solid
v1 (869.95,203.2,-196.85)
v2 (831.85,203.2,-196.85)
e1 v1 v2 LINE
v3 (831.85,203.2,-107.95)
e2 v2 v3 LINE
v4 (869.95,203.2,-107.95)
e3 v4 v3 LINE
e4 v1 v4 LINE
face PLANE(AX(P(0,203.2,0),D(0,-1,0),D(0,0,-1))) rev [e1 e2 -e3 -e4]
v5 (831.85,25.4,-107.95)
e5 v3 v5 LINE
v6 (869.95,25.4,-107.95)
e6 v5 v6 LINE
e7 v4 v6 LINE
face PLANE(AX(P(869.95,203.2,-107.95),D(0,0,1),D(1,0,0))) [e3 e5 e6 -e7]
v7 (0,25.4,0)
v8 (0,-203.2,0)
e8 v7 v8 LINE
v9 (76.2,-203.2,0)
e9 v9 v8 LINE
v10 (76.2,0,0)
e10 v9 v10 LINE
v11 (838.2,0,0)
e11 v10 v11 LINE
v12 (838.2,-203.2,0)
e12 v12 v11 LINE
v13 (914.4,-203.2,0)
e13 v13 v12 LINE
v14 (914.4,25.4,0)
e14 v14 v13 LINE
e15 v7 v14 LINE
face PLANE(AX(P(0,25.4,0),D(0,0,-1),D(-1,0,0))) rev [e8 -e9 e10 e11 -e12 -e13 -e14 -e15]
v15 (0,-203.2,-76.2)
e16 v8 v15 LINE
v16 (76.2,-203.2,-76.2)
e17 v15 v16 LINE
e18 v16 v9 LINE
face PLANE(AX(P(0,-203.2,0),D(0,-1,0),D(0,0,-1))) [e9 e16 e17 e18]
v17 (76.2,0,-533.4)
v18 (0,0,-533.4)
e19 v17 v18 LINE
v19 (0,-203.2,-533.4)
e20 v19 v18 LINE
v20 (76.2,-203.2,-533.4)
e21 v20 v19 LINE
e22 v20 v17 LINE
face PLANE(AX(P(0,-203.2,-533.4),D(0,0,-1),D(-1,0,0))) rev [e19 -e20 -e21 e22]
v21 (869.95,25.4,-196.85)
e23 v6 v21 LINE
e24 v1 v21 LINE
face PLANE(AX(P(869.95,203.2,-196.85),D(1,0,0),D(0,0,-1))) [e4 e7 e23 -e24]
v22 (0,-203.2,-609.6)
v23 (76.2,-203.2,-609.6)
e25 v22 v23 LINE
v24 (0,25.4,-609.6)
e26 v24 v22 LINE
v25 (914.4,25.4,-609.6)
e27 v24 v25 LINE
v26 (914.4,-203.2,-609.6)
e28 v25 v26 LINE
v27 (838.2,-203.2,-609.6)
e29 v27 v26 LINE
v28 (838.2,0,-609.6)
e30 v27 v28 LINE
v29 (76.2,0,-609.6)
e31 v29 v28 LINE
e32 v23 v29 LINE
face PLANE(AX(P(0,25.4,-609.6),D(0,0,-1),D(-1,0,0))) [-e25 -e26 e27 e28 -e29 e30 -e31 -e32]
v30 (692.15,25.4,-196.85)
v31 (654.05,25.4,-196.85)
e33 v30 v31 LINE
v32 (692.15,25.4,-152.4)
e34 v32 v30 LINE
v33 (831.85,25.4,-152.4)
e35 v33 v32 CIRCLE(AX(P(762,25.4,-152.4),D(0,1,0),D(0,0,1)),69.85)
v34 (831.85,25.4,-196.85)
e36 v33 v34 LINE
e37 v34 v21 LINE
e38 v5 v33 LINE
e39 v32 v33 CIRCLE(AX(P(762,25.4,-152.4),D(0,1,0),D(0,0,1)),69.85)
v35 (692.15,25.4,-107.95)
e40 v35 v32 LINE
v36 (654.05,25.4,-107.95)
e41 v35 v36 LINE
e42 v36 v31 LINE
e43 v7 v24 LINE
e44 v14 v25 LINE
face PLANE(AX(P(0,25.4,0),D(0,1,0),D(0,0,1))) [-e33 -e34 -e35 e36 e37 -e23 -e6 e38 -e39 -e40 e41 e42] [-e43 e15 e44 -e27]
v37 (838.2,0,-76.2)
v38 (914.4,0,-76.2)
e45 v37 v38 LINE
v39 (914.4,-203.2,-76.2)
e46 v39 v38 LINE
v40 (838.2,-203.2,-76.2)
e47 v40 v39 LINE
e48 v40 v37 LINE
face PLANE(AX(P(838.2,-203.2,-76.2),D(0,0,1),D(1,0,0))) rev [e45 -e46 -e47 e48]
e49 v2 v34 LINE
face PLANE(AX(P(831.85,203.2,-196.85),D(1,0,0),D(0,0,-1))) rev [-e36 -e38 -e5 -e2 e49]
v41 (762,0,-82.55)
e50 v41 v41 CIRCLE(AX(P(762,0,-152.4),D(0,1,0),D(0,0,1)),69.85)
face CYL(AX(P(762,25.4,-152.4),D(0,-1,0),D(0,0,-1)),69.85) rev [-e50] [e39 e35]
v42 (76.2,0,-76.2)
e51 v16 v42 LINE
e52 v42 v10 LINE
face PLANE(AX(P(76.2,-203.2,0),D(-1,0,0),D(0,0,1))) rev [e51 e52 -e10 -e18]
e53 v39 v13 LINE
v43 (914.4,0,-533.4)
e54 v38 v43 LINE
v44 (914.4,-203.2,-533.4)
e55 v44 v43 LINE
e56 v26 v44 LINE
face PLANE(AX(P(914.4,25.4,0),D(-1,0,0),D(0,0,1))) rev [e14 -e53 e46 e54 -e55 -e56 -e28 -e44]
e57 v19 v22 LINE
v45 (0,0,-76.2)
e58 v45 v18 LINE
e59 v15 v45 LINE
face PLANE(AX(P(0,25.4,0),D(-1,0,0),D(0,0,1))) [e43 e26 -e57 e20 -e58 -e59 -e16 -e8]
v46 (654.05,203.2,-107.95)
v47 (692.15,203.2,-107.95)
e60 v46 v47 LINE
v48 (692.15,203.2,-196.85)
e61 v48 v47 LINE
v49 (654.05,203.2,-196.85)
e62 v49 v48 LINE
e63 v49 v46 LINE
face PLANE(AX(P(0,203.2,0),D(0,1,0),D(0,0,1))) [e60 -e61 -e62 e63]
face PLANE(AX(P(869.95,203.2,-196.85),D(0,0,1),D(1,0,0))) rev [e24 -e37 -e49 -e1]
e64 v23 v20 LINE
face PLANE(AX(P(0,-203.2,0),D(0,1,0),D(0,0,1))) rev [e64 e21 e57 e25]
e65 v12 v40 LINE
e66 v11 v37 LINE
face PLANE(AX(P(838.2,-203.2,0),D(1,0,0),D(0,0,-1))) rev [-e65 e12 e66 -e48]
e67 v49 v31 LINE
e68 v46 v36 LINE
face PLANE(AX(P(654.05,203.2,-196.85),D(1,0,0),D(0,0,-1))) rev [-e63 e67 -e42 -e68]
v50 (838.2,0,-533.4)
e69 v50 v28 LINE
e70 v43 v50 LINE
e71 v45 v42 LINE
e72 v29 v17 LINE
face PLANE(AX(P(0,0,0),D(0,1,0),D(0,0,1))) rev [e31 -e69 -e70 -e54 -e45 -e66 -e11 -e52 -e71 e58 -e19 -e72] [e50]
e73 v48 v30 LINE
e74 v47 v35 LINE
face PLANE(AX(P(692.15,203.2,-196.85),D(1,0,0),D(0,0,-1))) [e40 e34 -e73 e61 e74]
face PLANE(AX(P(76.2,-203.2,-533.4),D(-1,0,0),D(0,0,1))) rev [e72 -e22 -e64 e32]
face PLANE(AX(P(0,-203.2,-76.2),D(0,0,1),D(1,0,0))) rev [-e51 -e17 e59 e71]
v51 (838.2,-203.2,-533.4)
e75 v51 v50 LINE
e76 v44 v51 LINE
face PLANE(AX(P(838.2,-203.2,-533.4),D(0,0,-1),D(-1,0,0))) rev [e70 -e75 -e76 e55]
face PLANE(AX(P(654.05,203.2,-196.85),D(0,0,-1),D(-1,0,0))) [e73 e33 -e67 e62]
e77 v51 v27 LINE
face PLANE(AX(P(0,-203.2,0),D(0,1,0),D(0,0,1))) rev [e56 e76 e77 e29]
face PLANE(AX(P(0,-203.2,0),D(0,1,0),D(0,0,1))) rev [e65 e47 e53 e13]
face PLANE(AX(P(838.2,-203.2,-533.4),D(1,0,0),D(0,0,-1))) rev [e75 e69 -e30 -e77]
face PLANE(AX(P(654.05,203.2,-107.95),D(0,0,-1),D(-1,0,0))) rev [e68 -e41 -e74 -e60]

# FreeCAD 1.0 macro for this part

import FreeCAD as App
import Part
import Sketcher
Q = App.Units.Quantity

doc = App.newDocument("Part")
body = doc.addObject("PartDesign::Body", "Body")

# Sketch on XZ plane
sketch1 = body.newObject("Sketcher::SketchObject", "Sketch")
sketch1.AttachmentSupport = (doc.getObject("XZ_Plane"), [""])
sketch1.MapMode = "FlatFace"
sketch1.addGeometry(Part.LineSegment(App.Vector(0, -609.6, 0), App.Vector(0, 0, 0)), False)
sketch1.addGeometry(Part.LineSegment(App.Vector(0, 0, 0), App.Vector(914.4, 0, 0)), False)
sketch1.addGeometry(Part.LineSegment(App.Vector(914.4, 0, 0), App.Vector(914.4, -609.6, 0)), False)
sketch1.addGeometry(Part.LineSegment(App.Vector(914.4, -609.6, 0), App.Vector(0, -609.6, 0)), False)
sketch1.addConstraint(Sketcher.Constraint("Coincident", 0, 2, 1, 1))
sketch1.addConstraint(Sketcher.Constraint("Coincident", 1, 2, 2, 1))
sketch1.addConstraint(Sketcher.Constraint("Coincident", 2, 2, 3, 1))
sketch1.addConstraint(Sketcher.Constraint("Coincident", 3, 2, 0, 1))
sketch1.addConstraint(Sketcher.Constraint("Vertical", 0))
sketch1.addConstraint(Sketcher.Constraint("Horizontal", 1))
sketch1.addConstraint(Sketcher.Constraint("Vertical", 2))
sketch1.addConstraint(Sketcher.Constraint("Horizontal", 3))
sketch1.addConstraint(Sketcher.Constraint("Coincident", 0, 2, -1, 1))
sketch1.addConstraint(Sketcher.Constraint("DistanceX", 1, 1, 1, 2, Q("36 in")))
sketch1.addConstraint(Sketcher.Constraint("DistanceY", 0, 1, 0, 2, Q("24 in")))
pad1 = body.newObject("PartDesign::Pad", "Pad")
pad1.Profile = sketch1
pad1.Length = Q("1 in")
pad1.Reversed = True

# Sketch on XZ plane
sketch2 = body.newObject("Sketcher::SketchObject", "Sketch001")
sketch2.AttachmentSupport = (doc.getObject("XZ_Plane"), [""])
sketch2.MapMode = "FlatFace"
sketch2.addGeometry(Part.Circle(App.Vector(762, -152.4, 0), App.Vector(0, 0, 1), 69.85), False)
sketch2.addConstraint(Sketcher.Constraint("Diameter", 0, Q("5.5 in")))
sketch2.addConstraint(Sketcher.Constraint("DistanceX", -1, 1, 0, 3, Q("30 in")))
sketch2.addConstraint(Sketcher.Constraint("DistanceY", 0, 3, -1, 1, Q("6 in")))
pocket1 = body.newObject("PartDesign::Pocket", "Pocket")
pocket1.Profile = sketch2
pocket1.Type = "ThroughAll"

# Sketch on XZ plane
sketch3 = body.newObject("Sketcher::SketchObject", "Sketch002")
sketch3.AttachmentSupport = (doc.getObject("XZ_Plane"), [""])
sketch3.MapMode = "FlatFace"
sketch3.addGeometry(Part.LineSegment(App.Vector(654.05, -196.85, 0), App.Vector(654.05, -107.95, 0)), False)
sketch3.addGeometry(Part.LineSegment(App.Vector(654.05, -107.95, 0), App.Vector(692.15, -107.95, 0)), False)
sketch3.addGeometry(Part.LineSegment(App.Vector(692.15, -107.95, 0), App.Vector(692.15, -196.85, 0)), False)
sketch3.addGeometry(Part.LineSegment(App.Vector(692.15, -196.85, 0), App.Vector(654.05, -196.85, 0)), False)
sketch3.addGeometry(Part.LineSegment(App.Vector(831.85, -196.85, 0), App.Vector(831.85, -107.95, 0)), False)
sketch3.addGeometry(Part.LineSegment(App.Vector(831.85, -107.95, 0), App.Vector(869.95, -107.95, 0)), False)
sketch3.addGeometry(Part.LineSegment(App.Vector(869.95, -107.95, 0), App.Vector(869.95, -196.85, 0)), False)
sketch3.addGeometry(Part.LineSegment(App.Vector(869.95, -196.85, 0), App.Vector(831.85, -196.85, 0)), False)
sketch3.addConstraint(Sketcher.Constraint("Coincident", 0, 2, 1, 1))
sketch3.addConstraint(Sketcher.Constraint("Coincident", 1, 2, 2, 1))
sketch3.addConstraint(Sketcher.Constraint("Coincident", 2, 2, 3, 1))
sketch3.addConstraint(Sketcher.Constraint("Coincident", 3, 2, 0, 1))
sketch3.addConstraint(Sketcher.Constraint("Coincident", 4, 2, 5, 1))
sketch3.addConstraint(Sketcher.Constraint("Coincident", 5, 2, 6, 1))
sketch3.addConstraint(Sketcher.Constraint("Coincident", 6, 2, 7, 1))
sketch3.addConstraint(Sketcher.Constraint("Coincident", 7, 2, 4, 1))
sketch3.addConstraint(Sketcher.Constraint("Vertical", 0))
sketch3.addConstraint(Sketcher.Constraint("Horizontal", 1))
sketch3.addConstraint(Sketcher.Constraint("Vertical", 2))
sketch3.addConstraint(Sketcher.Constraint("Horizontal", 3))
sketch3.addConstraint(Sketcher.Constraint("Vertical", 4))
sketch3.addConstraint(Sketcher.Constraint("Horizontal", 5))
sketch3.addConstraint(Sketcher.Constraint("Vertical", 6))
sketch3.addConstraint(Sketcher.Constraint("Horizontal", 7))
sketch3.addConstraint(Sketcher.Constraint("Horizontal", 1, 2, 4, 2))
sketch3.addConstraint(Sketcher.Constraint("Horizontal", 3, 2, 6, 2))
sketch3.addConstraint(Sketcher.Constraint("Equal", 3, 5))
sketch3.addConstraint(Sketcher.Constraint("DistanceX", 1, 1, 1, 2, Q("1.5 in")))
sketch3.addConstraint(Sketcher.Constraint("DistanceY", 0, 1, 0, 2, Q("3.5 in")))
sketch3.addConstraint(Sketcher.Constraint("DistanceX", 0, 2, 4, 2, Q("7 in")))
sketch3.addConstraint(Sketcher.Constraint("DistanceX", -1, 1, 0, 2, Q("25.75 in")))
sketch3.addConstraint(Sketcher.Constraint("DistanceY", 0, 2, -1, 1, Q("4.25 in")))
pad2 = body.newObject("PartDesign::Pad", "Pad001")
pad2.Profile = sketch3
pad2.Length = Q("8 in")
pad2.Reversed = True

# Sketch on XZ plane
sketch4 = body.newObject("Sketcher::SketchObject", "Sketch003")
sketch4.AttachmentSupport = (doc.getObject("XZ_Plane"), [""])
sketch4.MapMode = "FlatFace"
sketch4.addGeometry(Part.LineSegment(App.Vector(0, -533.4, 0), App.Vector(0, -609.6, 0)), False)
sketch4.addGeometry(Part.LineSegment(App.Vector(0, -609.6, 0), App.Vector(76.2, -609.6, 0)), False)
sketch4.addGeometry(Part.LineSegment(App.Vector(76.2, -609.6, 0), App.Vector(76.2, -533.4, 0)), False)
sketch4.addGeometry(Part.LineSegment(App.Vector(76.2, -533.4, 0), App.Vector(0, -533.4, 0)), False)
sketch4.addGeometry(Part.LineSegment(App.Vector(0, 0, 0), App.Vector(0, -76.2, 0)), False)
sketch4.addGeometry(Part.LineSegment(App.Vector(0, -76.2, 0), App.Vector(76.2, -76.2, 0)), False)
sketch4.addGeometry(Part.LineSegment(App.Vector(76.2, -76.2, 0), App.Vector(76.2, 0, 0)), False)
sketch4.addGeometry(Part.LineSegment(App.Vector(76.2, 0, 0), App.Vector(0, 0, 0)), False)
sketch4.addGeometry(Part.LineSegment(App.Vector(838.2, -533.4, 0), App.Vector(838.2, -609.6, 0)), False)
sketch4.addGeometry(Part.LineSegment(App.Vector(838.2, -609.6, 0), App.Vector(914.4, -609.6, 0)), False)
sketch4.addGeometry(Part.LineSegment(App.Vector(914.4, -609.6, 0), App.Vector(914.4, -533.4, 0)), False)
sketch4.addGeometry(Part.LineSegment(App.Vector(914.4, -533.4, 0), App.Vector(838.2, -533.4, 0)), False)
sketch4.addGeometry(Part.LineSegment(App.Vector(838.2, 0, 0), App.Vector(838.2, -76.2, 0)), False)
sketch4.addGeometry(Part.LineSegment(App.Vector(838.2, -76.2, 0), App.Vector(914.4, -76.2, 0)), False)
sketch4.addGeometry(Part.LineSegment(App.Vector(914.4, -76.2, 0), App.Vector(914.4, 0, 0)), False)
sketch4.addGeometry(Part.LineSegment(App.Vector(914.4, 0, 0), App.Vector(838.2, 0, 0)), False)
sketch4.addConstraint(Sketcher.Constraint("Coincident", 0, 2, 1, 1))
sketch4.addConstraint(Sketcher.Constraint("Coincident", 1, 2, 2, 1))
sketch4.addConstraint(Sketcher.Constraint("Coincident", 2, 2, 3, 1))
sketch4.addConstraint(Sketcher.Constraint("Coincident", 3, 2, 0, 1))
sketch4.addConstraint(Sketcher.Constraint("Coincident", 4, 2, 5, 1))
sketch4.addConstraint(Sketcher.Constraint("Coincident", 5, 2, 6, 1))
sketch4.addConstraint(Sketcher.Constraint("Coincident", 6, 2, 7, 1))
sketch4.addConstraint(Sketcher.Constraint("Coincident", 7, 2, 4, 1))
sketch4.addConstraint(Sketcher.Constraint("Coincident", 8, 2, 9, 1))
sketch4.addConstraint(Sketcher.Constraint("Coincident", 9, 2, 10, 1))
sketch4.addConstraint(Sketcher.Constraint("Coincident", 10, 2, 11, 1))
sketch4.addConstraint(Sketcher.Constraint("Coincident", 11, 2, 8, 1))
sketch4.addConstraint(Sketcher.Constraint("Coincident", 12, 2, 13, 1))
sketch4.addConstraint(Sketcher.Constraint("Coincident", 13, 2, 14, 1))
sketch4.addConstraint(Sketcher.Constraint("Coincident", 14, 2, 15, 1))
sketch4.addConstraint(Sketcher.Constraint("Coincident", 15, 2, 12, 1))
sketch4.addConstraint(Sketcher.Constraint("Vertical", 0))
sketch4.addConstraint(Sketcher.Constraint("Horizontal", 1))
sketch4.addConstraint(Sketcher.Constraint("Vertical", 2))
sketch4.addConstraint(Sketcher.Constraint("Horizontal", 3))
sketch4.addConstraint(Sketcher.Constraint("Vertical", 4))
sketch4.addConstraint(Sketcher.Constraint("Horizontal", 5))
sketch4.addConstraint(Sketcher.Constraint("Vertical", 6))
sketch4.addConstraint(Sketcher.Constraint("Horizontal", 7))
sketch4.addConstraint(Sketcher.Constraint("Vertical", 8))
sketch4.addConstraint(Sketcher.Constraint("Horizontal", 9))
sketch4.addConstraint(Sketcher.Constraint("Vertical", 10))
sketch4.addConstraint(Sketcher.Constraint("Horizontal", 11))
sketch4.addConstraint(Sketcher.Constraint("Vertical", 12))
sketch4.addConstraint(Sketcher.Constraint("Horizontal", 13))
sketch4.addConstraint(Sketcher.Constraint("Vertical", 14))
sketch4.addConstraint(Sketcher.Constraint("Horizontal", 15))
sketch4.addConstraint(Sketcher.Constraint("Coincident", 7, 2, -1, 1))
sketch4.addConstraint(Sketcher.Constraint("PointOnObject", 0, 2, -2))
sketch4.addConstraint(Sketcher.Constraint("PointOnObject", 14, 2, -1))
sketch4.addConstraint(Sketcher.Constraint("Horizontal", 1, 2, 8, 2))
sketch4.addConstraint(Sketcher.Constraint("Horizontal", 3, 2, 10, 2))
sketch4.addConstraint(Sketcher.Constraint("Horizontal", 5, 2, 12, 2))
sketch4.addConstraint(Sketcher.Constraint("Vertical", 2, 2, 5, 2))
sketch4.addConstraint(Sketcher.Constraint("Vertical", 11, 2, 12, 2))
sketch4.addConstraint(Sketcher.Constraint("Vertical", 10, 2, 13, 2))
sketch4.addConstraint(Sketcher.Constraint("Equal", 7, 9))
sketch4.addConstraint(Sketcher.Constraint("Equal", 15, 0))
sketch4.addConstraint(Sketcher.Constraint("Equal", 2, 4))
sketch4.addConstraint(Sketcher.Constraint("DistanceX", 1, 1, 1, 2, Q("3 in")))
sketch4.addConstraint(Sketcher.Constraint("DistanceY", 0, 2, -1, 1, Q("24 in")))
sketch4.addConstraint(Sketcher.Constraint("DistanceX", -1, 1, 8, 2, Q("33 in")))
pad3 = body.newObject("PartDesign::Pad", "Pad002")
pad3.Profile = sketch4
pad3.Length = Q("8 in")

doc.recompute()
